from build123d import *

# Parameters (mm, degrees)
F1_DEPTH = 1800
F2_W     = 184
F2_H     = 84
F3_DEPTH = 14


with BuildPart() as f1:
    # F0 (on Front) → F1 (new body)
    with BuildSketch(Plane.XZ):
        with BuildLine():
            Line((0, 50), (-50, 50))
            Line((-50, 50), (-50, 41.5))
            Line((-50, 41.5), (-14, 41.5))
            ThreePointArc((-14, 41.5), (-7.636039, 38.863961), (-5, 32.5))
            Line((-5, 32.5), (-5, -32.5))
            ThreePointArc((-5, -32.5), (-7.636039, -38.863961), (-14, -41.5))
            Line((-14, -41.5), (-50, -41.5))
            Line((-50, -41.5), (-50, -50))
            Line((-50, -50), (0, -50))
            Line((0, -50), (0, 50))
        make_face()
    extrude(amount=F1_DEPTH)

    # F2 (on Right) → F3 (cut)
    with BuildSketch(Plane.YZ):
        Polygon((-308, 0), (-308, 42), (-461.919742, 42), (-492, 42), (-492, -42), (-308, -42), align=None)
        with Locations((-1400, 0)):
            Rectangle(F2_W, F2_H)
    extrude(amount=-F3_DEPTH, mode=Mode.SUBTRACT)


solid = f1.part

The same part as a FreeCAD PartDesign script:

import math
import FreeCAD as App
import Part
import Sketcher

doc = App.newDocument("Part")
body = doc.addObject("PartDesign::Body", "Body")

# Sketch on XZ plane
sketch1 = doc.addObject("Sketcher::SketchObject", "Sketch")
body.addObject(sketch1)
sketch1.AttachmentSupport = (doc.XZ_Plane, [""])
sketch1.MapMode = "FlatFace"
sketch1.addGeometry([
    Part.LineSegment(App.Vector(0, 50, 0), App.Vector(-50, 50, 0)),  # 0
    Part.LineSegment(App.Vector(-50, 50, 0), App.Vector(-50, 41.5, 0)),  # 1
    Part.LineSegment(App.Vector(-50, 41.5, 0), App.Vector(-14, 41.5, 0)),  # 2
    Part.ArcOfCircle(Part.Circle(App.Vector(-14, 32.5, 0), App.Vector(0, 0, 1), 9), math.radians(0.000001), math.radians(89.999999)),  # 3
    Part.LineSegment(App.Vector(-5, 32.5, 0), App.Vector(-5, -32.5, 0)),  # 4
    Part.ArcOfCircle(Part.Circle(App.Vector(-14, -32.5, 0), App.Vector(0, 0, 1), 9), math.radians(-89.999999), math.radians(-0.000001)),  # 5
    Part.LineSegment(App.Vector(-14, -41.5, 0), App.Vector(-50, -41.5, 0)),  # 6
    Part.LineSegment(App.Vector(-50, -41.5, 0), App.Vector(-50, -50, 0)),  # 7
    Part.LineSegment(App.Vector(-50, -50, 0), App.Vector(0, -50, 0)),  # 8
    Part.LineSegment(App.Vector(0, -50, 0), App.Vector(0, 50, 0)),  # 9
], False)
sketch1.addConstraint([
    Sketcher.Constraint("Coincident", 0, 2, 1, 1),
    Sketcher.Constraint("Coincident", 1, 2, 2, 1),
    Sketcher.Constraint("Tangent", 2, 2, 3, 2),
    Sketcher.Constraint("Tangent", 3, 1, 4, 1),
    Sketcher.Constraint("Tangent", 4, 2, 5, 2),
    Sketcher.Constraint("Tangent", 5, 1, 6, 1),
    Sketcher.Constraint("Coincident", 6, 2, 7, 1),
    Sketcher.Constraint("Coincident", 7, 2, 8, 1),
    Sketcher.Constraint("Coincident", 8, 2, 9, 1),
    Sketcher.Constraint("Coincident", 9, 2, 0, 1),
    Sketcher.Constraint("Horizontal", 0),
    Sketcher.Constraint("Vertical", 1),
    Sketcher.Constraint("Horizontal", 2),
    Sketcher.Constraint("Vertical", 4),
    Sketcher.Constraint("Horizontal", 6),
    Sketcher.Constraint("Vertical", 7),
    Sketcher.Constraint("Horizontal", 8),
    Sketcher.Constraint("Vertical", 9),
    Sketcher.Constraint("Equal", 3, 5),
    Sketcher.Constraint("Symmetric", 8, 2, 9, 2, -1, 1),
    Sketcher.Constraint("Symmetric", 1, 2, 6, 2, -1),
    Sketcher.Constraint("Radius", 3, 9.0),
    Sketcher.Constraint("DistanceX", 0, 2, 0, 1, 50.0),
    Sketcher.Constraint("DistanceX", 2, 1, 2, 2, 36.0),
    Sketcher.Constraint("DistanceY", 4, 2, 4, 1, 65.0),
    Sketcher.Constraint("DistanceY", 9, 1, 9, 2, 100.0),
])
pad1 = doc.addObject("PartDesign::Pad", "Pad")
body.addObject(pad1)
pad1.Profile = sketch1
pad1.Length = 1800

# Sketch on YZ plane
sketch2 = doc.addObject("Sketcher::SketchObject", "Sketch001")
body.addObject(sketch2)
sketch2.AttachmentSupport = (doc.YZ_Plane, [""])
sketch2.MapMode = "FlatFace"
sketch2.addGeometry([
    Part.LineSegment(App.Vector(-308, 42, 0), App.Vector(-492, 42, 0)),  # 0
    Part.LineSegment(App.Vector(-492, 42, 0), App.Vector(-492, -42, 0)),  # 1
    Part.LineSegment(App.Vector(-492, -42, 0), App.Vector(-308, -42, 0)),  # 2
    Part.LineSegment(App.Vector(-308, -42, 0), App.Vector(-308, 42, 0)),  # 3
    Part.LineSegment(App.Vector(-1492, 42, 0), App.Vector(-1492, -42, 0)),  # 4
    Part.LineSegment(App.Vector(-1492, -42, 0), App.Vector(-1308, -42, 0)),  # 5
    Part.LineSegment(App.Vector(-1308, -42, 0), App.Vector(-1308, 42, 0)),  # 6
    Part.LineSegment(App.Vector(-1308, 42, 0), App.Vector(-1492, 42, 0)),  # 7
], False)
sketch2.addConstraint([
    Sketcher.Constraint("Coincident", 0, 2, 1, 1),
    Sketcher.Constraint("Coincident", 1, 2, 2, 1),
    Sketcher.Constraint("Coincident", 2, 2, 3, 1),
    Sketcher.Constraint("Coincident", 3, 2, 0, 1),
    Sketcher.Constraint("Coincident", 4, 2, 5, 1),
    Sketcher.Constraint("Coincident", 5, 2, 6, 1),
    Sketcher.Constraint("Coincident", 6, 2, 7, 1),
    Sketcher.Constraint("Coincident", 7, 2, 4, 1),
    Sketcher.Constraint("Horizontal", 0),
    Sketcher.Constraint("Vertical", 1),
    Sketcher.Constraint("Horizontal", 2),
    Sketcher.Constraint("Vertical", 3),
    Sketcher.Constraint("Vertical", 4),
    Sketcher.Constraint("Horizontal", 5),
    Sketcher.Constraint("Vertical", 6),
    Sketcher.Constraint("Horizontal", 7),
    Sketcher.Constraint("Horizontal", 2, 2, 4, 2),
    Sketcher.Constraint("Horizontal", 3, 2, 6, 2),
    Sketcher.Constraint("Equal", 2, 5),
    Sketcher.Constraint("DistanceX", 0, 2, 0, 1, 184.0),
    Sketcher.Constraint("DistanceY", 1, 2, 1, 1, 84.0),
    Sketcher.Constraint("DistanceX", 0, 2, -1, 1, 492.0),
    Sketcher.Constraint("DistanceY", -1, 1, 0, 2, 42.0),
    Sketcher.Constraint("DistanceX", 4, 2, -1, 1, 1492.0),
])
pocket1 = doc.addObject("PartDesign::Pocket", "Pocket")
body.addObject(pocket1)
pocket1.Profile = sketch2
pocket1.Length = 14

doc.recompute()
